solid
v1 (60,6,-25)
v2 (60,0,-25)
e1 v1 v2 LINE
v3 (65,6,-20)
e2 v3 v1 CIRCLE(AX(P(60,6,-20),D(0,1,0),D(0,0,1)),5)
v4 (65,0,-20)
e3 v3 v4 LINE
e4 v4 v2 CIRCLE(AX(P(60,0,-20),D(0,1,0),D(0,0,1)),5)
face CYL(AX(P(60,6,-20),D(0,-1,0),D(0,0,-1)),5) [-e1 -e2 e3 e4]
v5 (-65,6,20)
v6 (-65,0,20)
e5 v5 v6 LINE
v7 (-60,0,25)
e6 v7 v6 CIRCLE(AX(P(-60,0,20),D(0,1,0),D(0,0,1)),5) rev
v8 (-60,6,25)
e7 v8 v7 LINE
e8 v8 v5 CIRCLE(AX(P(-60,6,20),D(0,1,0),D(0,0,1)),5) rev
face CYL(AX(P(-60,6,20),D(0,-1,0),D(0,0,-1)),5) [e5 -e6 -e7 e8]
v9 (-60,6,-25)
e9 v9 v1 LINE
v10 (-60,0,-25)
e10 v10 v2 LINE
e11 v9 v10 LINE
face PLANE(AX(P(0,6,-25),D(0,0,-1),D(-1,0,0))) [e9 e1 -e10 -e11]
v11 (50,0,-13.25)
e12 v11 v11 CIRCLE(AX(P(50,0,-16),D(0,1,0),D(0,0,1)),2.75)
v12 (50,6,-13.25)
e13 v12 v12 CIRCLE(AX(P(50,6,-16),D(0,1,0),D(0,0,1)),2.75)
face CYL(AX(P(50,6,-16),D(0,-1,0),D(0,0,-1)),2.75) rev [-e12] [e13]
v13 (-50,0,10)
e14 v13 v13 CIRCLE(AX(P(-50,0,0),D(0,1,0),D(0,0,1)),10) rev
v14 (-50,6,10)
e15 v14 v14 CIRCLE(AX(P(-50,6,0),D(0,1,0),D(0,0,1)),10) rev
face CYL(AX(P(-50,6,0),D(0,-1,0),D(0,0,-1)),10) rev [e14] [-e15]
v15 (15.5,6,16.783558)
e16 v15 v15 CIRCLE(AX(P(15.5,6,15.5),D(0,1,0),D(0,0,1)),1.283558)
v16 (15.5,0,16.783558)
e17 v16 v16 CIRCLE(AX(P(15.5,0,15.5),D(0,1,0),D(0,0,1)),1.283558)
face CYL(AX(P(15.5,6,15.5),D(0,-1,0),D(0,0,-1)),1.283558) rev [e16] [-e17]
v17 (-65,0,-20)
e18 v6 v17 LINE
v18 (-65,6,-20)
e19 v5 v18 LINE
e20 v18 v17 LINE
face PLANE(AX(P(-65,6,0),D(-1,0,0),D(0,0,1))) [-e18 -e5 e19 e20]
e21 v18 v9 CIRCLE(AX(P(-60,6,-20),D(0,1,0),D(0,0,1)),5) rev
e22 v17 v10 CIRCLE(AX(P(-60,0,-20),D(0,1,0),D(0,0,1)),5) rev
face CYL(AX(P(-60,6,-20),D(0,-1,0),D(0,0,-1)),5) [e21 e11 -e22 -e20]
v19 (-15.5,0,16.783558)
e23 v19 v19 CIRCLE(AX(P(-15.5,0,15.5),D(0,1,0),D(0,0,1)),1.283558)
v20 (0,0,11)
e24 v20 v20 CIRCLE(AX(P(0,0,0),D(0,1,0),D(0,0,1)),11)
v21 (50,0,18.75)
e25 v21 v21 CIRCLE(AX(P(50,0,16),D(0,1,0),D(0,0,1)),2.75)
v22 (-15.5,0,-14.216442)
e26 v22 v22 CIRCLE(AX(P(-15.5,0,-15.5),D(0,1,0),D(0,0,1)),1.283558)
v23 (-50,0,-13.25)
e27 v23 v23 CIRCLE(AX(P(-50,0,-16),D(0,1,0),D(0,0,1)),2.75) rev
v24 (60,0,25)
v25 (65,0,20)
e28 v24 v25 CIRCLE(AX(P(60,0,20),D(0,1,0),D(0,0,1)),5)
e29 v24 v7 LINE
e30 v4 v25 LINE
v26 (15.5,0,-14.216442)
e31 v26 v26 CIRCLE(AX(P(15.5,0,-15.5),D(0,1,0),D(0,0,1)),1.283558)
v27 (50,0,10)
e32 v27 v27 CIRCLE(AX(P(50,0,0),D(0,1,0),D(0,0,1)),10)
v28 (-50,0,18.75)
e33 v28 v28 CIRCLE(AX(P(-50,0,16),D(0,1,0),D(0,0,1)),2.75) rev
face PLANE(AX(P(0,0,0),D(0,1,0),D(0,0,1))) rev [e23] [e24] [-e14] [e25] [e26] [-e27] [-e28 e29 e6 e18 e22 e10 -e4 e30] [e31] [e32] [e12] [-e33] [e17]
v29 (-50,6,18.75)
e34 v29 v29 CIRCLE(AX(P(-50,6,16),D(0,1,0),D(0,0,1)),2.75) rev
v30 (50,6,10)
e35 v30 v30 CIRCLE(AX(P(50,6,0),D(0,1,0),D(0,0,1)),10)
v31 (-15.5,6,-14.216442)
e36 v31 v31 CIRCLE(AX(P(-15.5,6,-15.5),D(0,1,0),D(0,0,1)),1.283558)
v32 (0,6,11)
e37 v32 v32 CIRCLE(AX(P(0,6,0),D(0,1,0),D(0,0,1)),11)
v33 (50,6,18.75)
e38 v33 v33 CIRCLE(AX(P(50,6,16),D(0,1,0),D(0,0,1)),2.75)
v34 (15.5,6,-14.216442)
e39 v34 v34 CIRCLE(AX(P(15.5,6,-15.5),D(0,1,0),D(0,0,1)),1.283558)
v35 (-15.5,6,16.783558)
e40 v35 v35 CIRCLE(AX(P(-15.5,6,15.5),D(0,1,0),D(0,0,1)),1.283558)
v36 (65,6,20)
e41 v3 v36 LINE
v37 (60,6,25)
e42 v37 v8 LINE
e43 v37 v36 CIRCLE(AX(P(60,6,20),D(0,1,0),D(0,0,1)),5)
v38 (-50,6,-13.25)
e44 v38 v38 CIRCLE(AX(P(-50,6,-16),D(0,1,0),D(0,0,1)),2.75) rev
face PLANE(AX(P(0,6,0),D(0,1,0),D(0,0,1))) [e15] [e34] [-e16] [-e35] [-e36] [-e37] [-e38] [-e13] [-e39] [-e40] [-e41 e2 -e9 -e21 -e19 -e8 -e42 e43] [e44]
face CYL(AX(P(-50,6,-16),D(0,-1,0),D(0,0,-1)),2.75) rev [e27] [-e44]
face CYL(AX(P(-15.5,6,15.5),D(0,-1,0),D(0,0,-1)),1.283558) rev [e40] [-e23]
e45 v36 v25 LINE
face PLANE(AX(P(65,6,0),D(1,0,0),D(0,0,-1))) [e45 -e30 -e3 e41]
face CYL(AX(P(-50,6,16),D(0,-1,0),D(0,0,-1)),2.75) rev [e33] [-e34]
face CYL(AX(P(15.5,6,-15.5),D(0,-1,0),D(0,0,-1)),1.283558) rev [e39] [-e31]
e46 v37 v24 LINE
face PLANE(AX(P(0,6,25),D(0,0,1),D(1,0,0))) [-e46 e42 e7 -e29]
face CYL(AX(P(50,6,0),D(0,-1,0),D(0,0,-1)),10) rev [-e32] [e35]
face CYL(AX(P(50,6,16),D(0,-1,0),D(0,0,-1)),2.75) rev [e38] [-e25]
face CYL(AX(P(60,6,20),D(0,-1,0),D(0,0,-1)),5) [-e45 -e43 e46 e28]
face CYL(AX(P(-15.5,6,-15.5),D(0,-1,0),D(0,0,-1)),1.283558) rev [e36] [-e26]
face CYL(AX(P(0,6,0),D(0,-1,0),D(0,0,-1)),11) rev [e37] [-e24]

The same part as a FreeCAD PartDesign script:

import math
import FreeCAD as App
import Part
import Sketcher
from FreeCAD import Vector
Q = App.Units.Quantity

doc = App.newDocument("Part")
body = doc.addObject("PartDesign::Body", "Body")

# Sketch on XZ plane
sketch1 = body.newObject("Sketcher::SketchObject", "Sketch")
sketch1.AttachmentSupport = (doc.getObject("XZ_Plane"), [""])
sketch1.MapMode = "FlatFace"
sketch1.addGeometry(Part.ArcOfCircle(Part.Circle(Vector(-60, -20, 0), Vector(0, 0, 1), 5), math.radians(180), math.radians(270)), False)
sketch1.addGeometry(Part.LineSegment(Vector(-65, -20, 0), Vector(-65, 20, 0)), False)
sketch1.addGeometry(Part.ArcOfCircle(Part.Circle(Vector(-60, 20, 0), Vector(0, 0, 1), 5), math.radians(90), math.radians(180)), False)
sketch1.addGeometry(Part.LineSegment(Vector(-60, 25, 0), Vector(60, 25, 0)), False)
sketch1.addGeometry(Part.ArcOfCircle(Part.Circle(Vector(60, 20, 0), Vector(0, 0, 1), 5), math.radians(0), math.radians(90)), False)
sketch1.addGeometry(Part.LineSegment(Vector(65, 20, 0), Vector(65, -20, 0)), False)
sketch1.addGeometry(Part.ArcOfCircle(Part.Circle(Vector(60, -20, 0), Vector(0, 0, 1), 5), math.radians(-90), math.radians(0)), False)
sketch1.addGeometry(Part.LineSegment(Vector(60, -25, 0), Vector(-60, -25, 0)), False)
sketch1.addGeometry(Part.Circle(Vector(50, 16, 0), Vector(0, 0, 1), 2.8), False)
sketch1.addGeometry(Part.Circle(Vector(15.5, 15.5, 0), Vector(0, 0, 1), 1.3), False)
sketch1.addGeometry(Part.Circle(Vector(-15.5, 15.5, 0), Vector(0, 0, 1), 1.3), False)
sketch1.addGeometry(Part.Circle(Vector(-50, 16, 0), Vector(0, 0, 1), 2.8), False)
sketch1.addGeometry(Part.Circle(Vector(50, 0, 0), Vector(0, 0, 1), 10), False)
sketch1.addGeometry(Part.Circle(Vector(50, -16, 0), Vector(0, 0, 1), 2.8), False)
sketch1.addGeometry(Part.Circle(Vector(15.5, -15.5, 0), Vector(0, 0, 1), 1.3), False)
sketch1.addGeometry(Part.Circle(Vector(0, 0, 0), Vector(0, 0, 1), 11), False)
sketch1.addGeometry(Part.Circle(Vector(-50, 0, 0), Vector(0, 0, 1), 10), False)
sketch1.addGeometry(Part.Circle(Vector(-15.5, -15.5, 0), Vector(0, 0, 1), 1.3), False)
sketch1.addGeometry(Part.Circle(Vector(-50, -16, 0), Vector(0, 0, 1), 2.8), False)
sketch1.addConstraint(Sketcher.Constraint("Tangent", 0, 1, 1, 1))
sketch1.addConstraint(Sketcher.Constraint("Tangent", 1, 2, 2, 2))
sketch1.addConstraint(Sketcher.Constraint("Tangent", 2, 1, 3, 1))
sketch1.addConstraint(Sketcher.Constraint("Tangent", 3, 2, 4, 2))
sketch1.addConstraint(Sketcher.Constraint("Tangent", 4, 1, 5, 1))
sketch1.addConstraint(Sketcher.Constraint("Tangent", 5, 2, 6, 2))
sketch1.addConstraint(Sketcher.Constraint("Tangent", 6, 1, 7, 1))
sketch1.addConstraint(Sketcher.Constraint("Tangent", 7, 2, 0, 2))
sketch1.addConstraint(Sketcher.Constraint("Vertical", 1))
sketch1.addConstraint(Sketcher.Constraint("Horizontal", 3))
sketch1.addConstraint(Sketcher.Constraint("Vertical", 5))
sketch1.addConstraint(Sketcher.Constraint("Horizontal", 7))
sketch1.addConstraint(Sketcher.Constraint("Coincident", 15, 3, -1, 1))
sketch1.addConstraint(Sketcher.Constraint("Equal", 0, 2))
sketch1.addConstraint(Sketcher.Constraint("Equal", 2, 4))
sketch1.addConstraint(Sketcher.Constraint("Equal", 4, 6))
sketch1.addConstraint(Sketcher.Constraint("Equal", 9, 10))
sketch1.addConstraint(Sketcher.Constraint("Equal", 8, 11))
sketch1.addConstraint(Sketcher.Constraint("Equal", 11, 13))
sketch1.addConstraint(Sketcher.Constraint("Equal", 10, 14))
sketch1.addConstraint(Sketcher.Constraint("Equal", 12, 16))
sketch1.addConstraint(Sketcher.Constraint("Equal", 14, 17))
sketch1.addConstraint(Sketcher.Constraint("Equal", 13, 18))
sketch1.addConstraint(Sketcher.Constraint("Symmetric", 0, 3, 4, 3, -1, 1))
sketch1.addConstraint(Sketcher.Constraint("Symmetric", 11, 3, 13, 3, -1, 1))
sketch1.addConstraint(Sketcher.Constraint("Symmetric", 10, 3, 14, 3, -1, 1))
sketch1.addConstraint(Sketcher.Constraint("Symmetric", 12, 3, 16, 3, -1, 1))
sketch1.addConstraint(Sketcher.Constraint("Symmetric", 9, 3, 17, 3, -1, 1))
sketch1.addConstraint(Sketcher.Constraint("Symmetric", 8, 3, 18, 3, -1, 1))
sketch1.addConstraint(Sketcher.Constraint("Symmetric", 9, 3, 10, 3, -2))
sketch1.addConstraint(Sketcher.Constraint("Symmetric", 8, 3, 11, 3, -2))
sketch1.addConstraint(Sketcher.Constraint("PointOnObject", 12, 3, -1))
sketch1.addConstraint(Sketcher.Constraint("Vertical", 8, 3, 12, 3))
sketch1.addConstraint(Sketcher.Constraint("Diameter", 12, Q("20 mm")))
sketch1.addConstraint(Sketcher.Constraint("Diameter", 15, Q("22 mm")))
sketch1.addConstraint(Sketcher.Constraint("Radius", 0, Q("5 mm")))
sketch1.addConstraint(Sketcher.Constraint("Diameter", 8, Q("5.5 mm")))
sketch1.addConstraint(Sketcher.Constraint("DistanceX", 3, 1, 3, 2, Q("120 mm")))
sketch1.addConstraint(Sketcher.Constraint("DistanceY", 1, 1, 1, 2, Q("40 mm")))
sketch1.addConstraint(Sketcher.Constraint("DistanceX", -1, 1, 8, 3, Q("50 mm")))
sketch1.addConstraint(Sketcher.Constraint("DistanceY", -1, 1, 8, 3, Q("16 mm")))
sketch1.addConstraint(Sketcher.Constraint("DistanceX", 10, 3, 9, 3, Q("31 mm")))
sketch1.addConstraint(Sketcher.Constraint("DistanceY", 14, 3, 9, 3, Q("31 mm")))
sketch1.addConstraint(Sketcher.Constraint("Diameter", 9, Q("2.567116 mm")))
pad1 = body.newObject("PartDesign::Pad", "Pad")
pad1.Profile = sketch1
pad1.Length = 6
pad1.Reversed = True

doc.recompute()
